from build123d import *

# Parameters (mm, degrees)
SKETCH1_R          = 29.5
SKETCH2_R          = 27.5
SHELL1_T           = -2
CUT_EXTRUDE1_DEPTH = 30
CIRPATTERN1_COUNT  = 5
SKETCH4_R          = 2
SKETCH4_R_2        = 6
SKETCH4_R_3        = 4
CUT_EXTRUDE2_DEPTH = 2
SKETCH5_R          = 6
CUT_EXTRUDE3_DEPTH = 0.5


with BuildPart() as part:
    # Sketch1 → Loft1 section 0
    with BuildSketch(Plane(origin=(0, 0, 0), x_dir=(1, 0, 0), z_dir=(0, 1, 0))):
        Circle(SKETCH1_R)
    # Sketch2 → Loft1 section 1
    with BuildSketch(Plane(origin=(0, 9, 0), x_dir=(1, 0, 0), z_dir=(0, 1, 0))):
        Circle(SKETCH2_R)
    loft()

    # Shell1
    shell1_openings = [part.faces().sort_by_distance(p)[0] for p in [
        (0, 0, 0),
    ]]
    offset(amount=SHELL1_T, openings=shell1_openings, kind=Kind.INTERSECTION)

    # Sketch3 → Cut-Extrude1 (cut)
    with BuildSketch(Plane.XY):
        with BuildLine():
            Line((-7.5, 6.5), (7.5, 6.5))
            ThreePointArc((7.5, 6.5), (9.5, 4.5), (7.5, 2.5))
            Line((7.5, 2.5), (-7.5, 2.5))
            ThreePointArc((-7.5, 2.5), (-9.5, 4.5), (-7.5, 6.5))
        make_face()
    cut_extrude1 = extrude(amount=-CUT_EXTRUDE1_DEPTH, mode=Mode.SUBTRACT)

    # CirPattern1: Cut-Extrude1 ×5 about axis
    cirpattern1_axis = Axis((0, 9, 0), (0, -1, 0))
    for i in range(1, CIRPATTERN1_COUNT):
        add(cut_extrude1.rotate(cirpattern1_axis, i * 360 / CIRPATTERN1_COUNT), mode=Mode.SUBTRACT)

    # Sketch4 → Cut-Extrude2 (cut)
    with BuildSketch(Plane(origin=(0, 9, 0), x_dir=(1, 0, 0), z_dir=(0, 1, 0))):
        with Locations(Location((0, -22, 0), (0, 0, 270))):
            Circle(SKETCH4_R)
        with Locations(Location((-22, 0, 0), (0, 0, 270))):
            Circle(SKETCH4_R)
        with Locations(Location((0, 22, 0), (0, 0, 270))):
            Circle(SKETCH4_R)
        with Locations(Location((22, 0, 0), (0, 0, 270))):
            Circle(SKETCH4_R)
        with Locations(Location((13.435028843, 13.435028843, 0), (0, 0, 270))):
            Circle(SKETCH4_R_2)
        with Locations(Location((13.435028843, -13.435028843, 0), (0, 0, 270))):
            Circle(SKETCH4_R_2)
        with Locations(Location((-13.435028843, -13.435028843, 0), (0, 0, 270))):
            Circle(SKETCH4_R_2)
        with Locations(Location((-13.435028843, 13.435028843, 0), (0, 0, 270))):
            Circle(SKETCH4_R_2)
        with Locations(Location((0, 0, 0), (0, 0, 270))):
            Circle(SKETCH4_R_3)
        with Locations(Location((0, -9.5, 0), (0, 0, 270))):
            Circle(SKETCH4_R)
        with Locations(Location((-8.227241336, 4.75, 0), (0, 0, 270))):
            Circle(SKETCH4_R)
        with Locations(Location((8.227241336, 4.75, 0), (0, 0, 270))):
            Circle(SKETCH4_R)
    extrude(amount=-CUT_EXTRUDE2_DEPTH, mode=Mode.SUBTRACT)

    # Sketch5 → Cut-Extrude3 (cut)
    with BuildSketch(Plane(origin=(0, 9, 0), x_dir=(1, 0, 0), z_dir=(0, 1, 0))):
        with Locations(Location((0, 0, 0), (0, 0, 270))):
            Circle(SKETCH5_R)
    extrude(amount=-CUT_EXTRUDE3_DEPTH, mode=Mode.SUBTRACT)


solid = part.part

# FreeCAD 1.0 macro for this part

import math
import FreeCAD as App
import Part
import Sketcher

V = App.Vector


def faces_at(feature, points):
    """Names of the faces that lie closest to the given points."""
    faces = feature.Shape.Faces
    near = lambda p: min(range(len(faces)), key=lambda i: faces[i].distToShape(Part.Vertex(*p))[0])
    return sorted({f"Face{near(p) + 1}" for p in points})

doc = App.newDocument("Part")
body = doc.addObject("PartDesign::Body", "Body")

sketch1 = body.newObject("Sketcher::SketchObject", "Sketch")
sketch1.AttachmentSupport = (doc.getObject("XZ_Plane"), [""])
sketch1.MapMode = "FlatFace"
sketch1.addGeometry(Part.Circle(V(0, 0, 0), V(0, 0, 1), 29.5), False)
sketch1.addConstraint(Sketcher.Constraint("Coincident", 0, 3, -1, 1))
sketch1.addConstraint(Sketcher.Constraint("Diameter", 0, 59.0))

sketch2 = body.newObject("Sketcher::SketchObject", "Sketch001")
sketch2.AttachmentSupport = (doc.getObject("XZ_Plane"), [""])
sketch2.MapMode = "FlatFace"
sketch2.AttachmentOffset = App.Placement(V(0, 0, -9), App.Rotation())
sketch2.addGeometry(Part.Circle(V(0, 0, 0), V(0, 0, 1), 27.5), False)
sketch2.addConstraint(Sketcher.Constraint("Coincident", 0, 3, -1, 1))
sketch2.addConstraint(Sketcher.Constraint("Diameter", 0, 55.0))

additiveloft = body.newObject("PartDesign::AdditiveLoft", "AdditiveLoft")
additiveloft.Profile = sketch1
additiveloft.Sections = [sketch2]
doc.recompute()

thickness = body.newObject("PartDesign::Thickness", "Thickness")
thickness.Base = (additiveloft, faces_at(additiveloft, [(0, 0, 0)]))
thickness.Value = 2
thickness.Reversed = True
thickness.Join = "Intersection"

sketch3 = body.newObject("Sketcher::SketchObject", "Sketch002")
sketch3.AttachmentSupport = (doc.getObject("XY_Plane"), [""])
sketch3.MapMode = "FlatFace"
sketch3.addGeometry(Part.LineSegment(V(7.5, 6.5, 0), V(-7.5, 6.5, 0)), False)
sketch3.addGeometry(Part.ArcOfCircle(Part.Circle(V(-7.5, 4.5, 0), V(0, 0, 1), 2), math.radians(90), math.radians(270)), False)
sketch3.addGeometry(Part.LineSegment(V(-7.5, 2.5, 0), V(7.5, 2.5, 0)), False)
sketch3.addGeometry(Part.ArcOfCircle(Part.Circle(V(7.5, 4.5, 0), V(0, 0, 1), 2), math.radians(-90), math.radians(90)), False)
sketch3.addConstraint(Sketcher.Constraint("Tangent", 0, 2, 1, 1))
sketch3.addConstraint(Sketcher.Constraint("Tangent", 1, 2, 2, 1))
sketch3.addConstraint(Sketcher.Constraint("Tangent", 2, 2, 3, 1))
sketch3.addConstraint(Sketcher.Constraint("Tangent", 3, 2, 0, 1))
sketch3.addConstraint(Sketcher.Constraint("Horizontal", 0))
sketch3.addConstraint(Sketcher.Constraint("Horizontal", 2))
sketch3.addConstraint(Sketcher.Constraint("Radius", 1, 2.0))
sketch3.addConstraint(Sketcher.Constraint("DistanceX", 0, 2, 0, 1, 15.0))
sketch3.addConstraint(Sketcher.Constraint("DistanceX", 1, 3, -1, 1, 7.5))
sketch3.addConstraint(Sketcher.Constraint("DistanceY", -1, 1, 1, 3, 4.5))
pocket1 = body.newObject("PartDesign::Pocket", "Pocket")
pocket1.Profile = sketch3
pocket1.Length = 30
doc.recompute()

polarpattern = body.newObject("PartDesign::PolarPattern", "PolarPattern")
polarpattern.Originals = [pocket1]
polarpattern.Axis = (doc.getObject("Y_Axis"), [""])
polarpattern.Angle = 360
polarpattern.Occurrences = 5
body.Tip = polarpattern

sketch4 = body.newObject("Sketcher::SketchObject", "Sketch003")
sketch4.AttachmentSupport = (doc.getObject("XZ_Plane"), [""])
sketch4.MapMode = "FlatFace"
sketch4.AttachmentOffset = App.Placement(V(0, 0, -9), App.Rotation())
sketch4.addGeometry(Part.Circle(V(0, 22, 0), V(0, 0, 1), 2), False)
sketch4.addGeometry(Part.Circle(V(-22, 0, 0), V(0, 0, 1), 2), False)
sketch4.addGeometry(Part.Circle(V(0, -22, 0), V(0, 0, 1), 2), False)
sketch4.addGeometry(Part.Circle(V(22, 0, 0), V(0, 0, 1), 2), False)
sketch4.addGeometry(Part.Circle(V(13.435029, -13.435029, 0), V(0, 0, 1), 6), False)
sketch4.addGeometry(Part.Circle(V(13.435029, 13.435029, 0), V(0, 0, 1), 6), False)
sketch4.addGeometry(Part.Circle(V(-13.435029, 13.435029, 0), V(0, 0, 1), 6), False)
sketch4.addGeometry(Part.Circle(V(-13.435029, -13.435029, 0), V(0, 0, 1), 6), False)
sketch4.addGeometry(Part.Circle(V(0, 0, 0), V(0, 0, 1), 4), False)
sketch4.addGeometry(Part.Circle(V(0, 9.5, 0), V(0, 0, 1), 2), False)
sketch4.addGeometry(Part.Circle(V(-8.227241, -4.75, 0), V(0, 0, 1), 2), False)
sketch4.addGeometry(Part.Circle(V(8.227241, -4.75, 0), V(0, 0, 1), 2), False)
sketch4.addConstraint(Sketcher.Constraint("Coincident", 8, 3, -1, 1))
sketch4.addConstraint(Sketcher.Constraint("Equal", 0, 1))
sketch4.addConstraint(Sketcher.Constraint("Equal", 1, 2))
sketch4.addConstraint(Sketcher.Constraint("Equal", 2, 3))
sketch4.addConstraint(Sketcher.Constraint("Equal", 4, 5))
sketch4.addConstraint(Sketcher.Constraint("Equal", 5, 6))
sketch4.addConstraint(Sketcher.Constraint("Equal", 6, 7))
sketch4.addConstraint(Sketcher.Constraint("Equal", 3, 9))
sketch4.addConstraint(Sketcher.Constraint("Equal", 9, 10))
sketch4.addConstraint(Sketcher.Constraint("Equal", 10, 11))
sketch4.addConstraint(Sketcher.Constraint("Symmetric", 0, 3, 2, 3, -1, 1))
sketch4.addConstraint(Sketcher.Constraint("Symmetric", 1, 3, 3, 3, -1, 1))
sketch4.addConstraint(Sketcher.Constraint("Symmetric", 4, 3, 6, 3, -1, 1))
sketch4.addConstraint(Sketcher.Constraint("Symmetric", 5, 3, 7, 3, -1, 1))
sketch4.addConstraint(Sketcher.Constraint("Symmetric", 5, 3, 6, 3, -2))
sketch4.addConstraint(Sketcher.Constraint("Symmetric", 10, 3, 11, 3, -2))
sketch4.addConstraint(Sketcher.Constraint("PointOnObject", 0, 3, -2))
sketch4.addConstraint(Sketcher.Constraint("PointOnObject", 1, 3, -1))
sketch4.addConstraint(Sketcher.Constraint("PointOnObject", 9, 3, -2))
sketch4.addConstraint(Sketcher.Constraint("Diameter", 0, 4.0))
sketch4.addConstraint(Sketcher.Constraint("Diameter", 4, 12.0))
sketch4.addConstraint(Sketcher.Constraint("Diameter", 8, 8.0))
sketch4.addConstraint(Sketcher.Constraint("DistanceY", -1, 1, 0, 3, 22.0))
sketch4.addConstraint(Sketcher.Constraint("DistanceX", 1, 3, -1, 1, 22.0))
sketch4.addConstraint(Sketcher.Constraint("DistanceY", -1, 1, 9, 3, 9.5))
sketch4.addConstraint(Sketcher.Constraint("DistanceY", 10, 3, -1, 1, 4.75))
sketch4.addConstraint(Sketcher.Constraint("DistanceX", -1, 1, 4, 3, 13.435029))
sketch4.addConstraint(Sketcher.Constraint("DistanceY", 4, 3, -1, 1, 13.435029))
sketch4.addConstraint(Sketcher.Constraint("DistanceX", 10, 3, -1, 1, 8.227241))
pocket2 = body.newObject("PartDesign::Pocket", "Pocket001")
pocket2.Profile = sketch4
pocket2.Length = 2
pocket2.Reversed = True

sketch5 = body.newObject("Sketcher::SketchObject", "Sketch004")
sketch5.AttachmentSupport = (doc.getObject("XZ_Plane"), [""])
sketch5.MapMode = "FlatFace"
sketch5.AttachmentOffset = App.Placement(V(0, 0, -9), App.Rotation())
sketch5.addGeometry(Part.Circle(V(0, 0, 0), V(0, 0, 1), 6), False)
sketch5.addConstraint(Sketcher.Constraint("Coincident", 0, 3, -1, 1))
sketch5.addConstraint(Sketcher.Constraint("Diameter", 0, 12.0))
pocket3 = body.newObject("PartDesign::Pocket", "Pocket002")
pocket3.Profile = sketch5
pocket3.Length = 0.5
pocket3.Reversed = True

doc.recompute()
